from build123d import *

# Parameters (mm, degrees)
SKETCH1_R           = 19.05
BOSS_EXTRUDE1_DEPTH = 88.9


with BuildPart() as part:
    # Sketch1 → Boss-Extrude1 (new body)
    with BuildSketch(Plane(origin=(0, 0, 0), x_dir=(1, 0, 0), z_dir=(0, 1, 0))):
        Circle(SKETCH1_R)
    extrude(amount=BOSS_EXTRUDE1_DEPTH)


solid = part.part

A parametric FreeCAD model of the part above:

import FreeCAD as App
import Part
import Sketcher
Q = App.Units.Quantity

doc = App.newDocument("Part")
body = doc.addObject("PartDesign::Body", "Body")

sketch1 = body.newObject("Sketcher::SketchObject", "Sketch")
sketch1.AttachmentSupport = (doc.getObject("XZ_Plane"), [""])
sketch1.MapMode = "FlatFace"
sketch1.addGeometry(Part.Circle(App.Vector(0, 0, 0), App.Vector(0, 0, 1), 19), False)
sketch1.addConstraint([
    Sketcher.Constraint("Coincident", 0, 3, -1, 1),
    Sketcher.Constraint("Diameter", 0, Q("1.5 in")),
])
pad1 = body.newObject("PartDesign::Pad", "Pad")
pad1.Profile = sketch1
pad1.Length = Q("3.5 in")
pad1.Reversed = True

doc.recompute()
